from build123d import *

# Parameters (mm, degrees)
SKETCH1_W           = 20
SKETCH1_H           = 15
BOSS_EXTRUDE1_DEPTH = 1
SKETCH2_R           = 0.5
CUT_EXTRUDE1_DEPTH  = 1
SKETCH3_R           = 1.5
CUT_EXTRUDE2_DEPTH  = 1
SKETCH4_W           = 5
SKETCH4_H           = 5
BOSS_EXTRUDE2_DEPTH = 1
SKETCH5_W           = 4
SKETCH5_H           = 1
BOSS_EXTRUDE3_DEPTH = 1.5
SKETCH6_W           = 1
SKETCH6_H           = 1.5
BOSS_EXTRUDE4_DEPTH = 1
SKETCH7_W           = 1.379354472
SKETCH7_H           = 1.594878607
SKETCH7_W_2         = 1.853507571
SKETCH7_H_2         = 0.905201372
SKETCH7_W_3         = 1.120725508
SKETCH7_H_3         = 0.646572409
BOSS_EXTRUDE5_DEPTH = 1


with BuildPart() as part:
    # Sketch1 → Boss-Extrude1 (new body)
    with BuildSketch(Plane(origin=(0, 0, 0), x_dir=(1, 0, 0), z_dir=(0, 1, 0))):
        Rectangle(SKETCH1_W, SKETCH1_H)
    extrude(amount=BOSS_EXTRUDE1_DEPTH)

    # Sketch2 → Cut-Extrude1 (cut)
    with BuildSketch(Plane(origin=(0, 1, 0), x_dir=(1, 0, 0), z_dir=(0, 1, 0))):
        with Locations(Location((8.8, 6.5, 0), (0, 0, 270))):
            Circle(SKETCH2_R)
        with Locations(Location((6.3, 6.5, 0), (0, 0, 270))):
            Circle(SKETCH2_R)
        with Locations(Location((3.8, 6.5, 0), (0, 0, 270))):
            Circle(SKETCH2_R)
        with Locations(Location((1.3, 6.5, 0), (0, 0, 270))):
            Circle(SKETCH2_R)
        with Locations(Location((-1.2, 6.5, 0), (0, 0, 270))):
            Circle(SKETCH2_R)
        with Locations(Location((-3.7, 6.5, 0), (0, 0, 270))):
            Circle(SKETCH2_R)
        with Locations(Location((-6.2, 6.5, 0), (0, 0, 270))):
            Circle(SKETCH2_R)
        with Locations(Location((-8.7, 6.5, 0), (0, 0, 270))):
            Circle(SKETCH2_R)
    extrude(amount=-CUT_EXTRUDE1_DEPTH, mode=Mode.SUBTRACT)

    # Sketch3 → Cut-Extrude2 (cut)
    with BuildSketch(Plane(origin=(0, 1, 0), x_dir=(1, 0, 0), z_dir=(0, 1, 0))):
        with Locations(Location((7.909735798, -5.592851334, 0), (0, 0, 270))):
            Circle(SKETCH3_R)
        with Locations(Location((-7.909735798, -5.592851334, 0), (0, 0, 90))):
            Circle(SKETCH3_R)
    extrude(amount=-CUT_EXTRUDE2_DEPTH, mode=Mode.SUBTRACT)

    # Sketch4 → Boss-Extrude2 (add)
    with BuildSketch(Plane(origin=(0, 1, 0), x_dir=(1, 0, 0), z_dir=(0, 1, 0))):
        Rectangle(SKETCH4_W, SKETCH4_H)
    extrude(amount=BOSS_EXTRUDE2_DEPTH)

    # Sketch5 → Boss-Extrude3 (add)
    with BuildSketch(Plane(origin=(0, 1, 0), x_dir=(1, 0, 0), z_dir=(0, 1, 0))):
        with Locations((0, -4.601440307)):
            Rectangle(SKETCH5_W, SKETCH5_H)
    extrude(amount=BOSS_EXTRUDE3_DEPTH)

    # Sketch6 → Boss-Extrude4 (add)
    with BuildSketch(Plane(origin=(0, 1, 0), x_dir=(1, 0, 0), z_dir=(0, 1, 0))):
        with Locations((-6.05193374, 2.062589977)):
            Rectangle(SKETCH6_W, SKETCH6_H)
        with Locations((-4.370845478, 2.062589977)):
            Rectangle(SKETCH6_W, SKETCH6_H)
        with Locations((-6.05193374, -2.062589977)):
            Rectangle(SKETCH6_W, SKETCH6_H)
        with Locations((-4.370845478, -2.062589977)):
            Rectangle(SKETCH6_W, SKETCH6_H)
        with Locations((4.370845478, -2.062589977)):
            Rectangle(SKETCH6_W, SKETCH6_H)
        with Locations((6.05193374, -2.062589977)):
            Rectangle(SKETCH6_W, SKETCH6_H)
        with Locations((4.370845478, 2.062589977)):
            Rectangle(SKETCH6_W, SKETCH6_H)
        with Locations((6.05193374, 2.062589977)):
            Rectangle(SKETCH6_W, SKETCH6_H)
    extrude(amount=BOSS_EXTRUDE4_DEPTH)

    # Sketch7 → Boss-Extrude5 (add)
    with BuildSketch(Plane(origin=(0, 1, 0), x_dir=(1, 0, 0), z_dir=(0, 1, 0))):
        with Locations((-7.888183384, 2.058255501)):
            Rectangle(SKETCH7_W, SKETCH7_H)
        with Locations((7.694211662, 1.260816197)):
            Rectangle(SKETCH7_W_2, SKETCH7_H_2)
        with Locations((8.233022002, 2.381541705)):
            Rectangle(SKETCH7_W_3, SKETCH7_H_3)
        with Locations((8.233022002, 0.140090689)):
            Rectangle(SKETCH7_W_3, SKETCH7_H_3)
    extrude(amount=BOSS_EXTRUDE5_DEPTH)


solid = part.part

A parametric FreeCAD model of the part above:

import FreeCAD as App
import Part
import Sketcher
from FreeCAD import Vector
Q = App.Units.Quantity


def add_polygon(sketch, points):
    """Adds a closed chain of lines whose ends are joined by coincident constraints."""
    first, n = sketch.GeometryCount, len(points)
    for a, b in zip(points, points[1:] + points[:1]):
        sketch.addGeometry(Part.LineSegment(App.Vector(*a, 0), App.Vector(*b, 0)), False)
    for i in range(n):
        sketch.addConstraint(Sketcher.Constraint("Coincident", first + i, 2, first + (i + 1) % n, 1))

doc = App.newDocument("Part")
params = doc.addObject("Spreadsheet::Sheet", "Params")
for row, (alias, value) in enumerate([
    ("sketch1_width", "20 mm"),
    ("sketch1_height", "15 mm"),
    ("pad1_length", "1 mm"),
    ("sketch2_diameter", "1 mm"),
    ("pocket1_length", "1 mm"),
    ("sketch3_diameter", "3 mm"),
    ("pocket2_length", "1 mm"),
    ("sketch4_width", "5 mm"),
    ("pad2_length", "1 mm"),
    ("sketch5_width", "4 mm"),
    ("sketch5_height", "1 mm"),
    ("pad3_length", "1.5 mm"),
    ("sketch6_width", "1 mm"),
    ("sketch6_height", "1.5 mm"),
    ("pad4_length", "1 mm"),
    ("pad5_length", "1 mm"),
], start=1):
    params.set(f"A{row}", alias)
    params.set(f"B{row}", "=" + value)
    params.setAlias(f"B{row}", alias)

body = doc.addObject("PartDesign::Body", "Body")

# Sketch on XZ plane
sketch1 = body.newObject("Sketcher::SketchObject", "Sketch")
sketch1.AttachmentSupport = (doc.getObject("XZ_Plane"), [""])
sketch1.MapMode = "FlatFace"
add_polygon(sketch1, [(-10, -8), (-10, 8), (10, 8), (10, -8)])  # lines 0-3
sketch1.addConstraint(Sketcher.Constraint("Vertical", 0))
sketch1.addConstraint(Sketcher.Constraint("Horizontal", 1))
sketch1.addConstraint(Sketcher.Constraint("Vertical", 2))
sketch1.addConstraint(Sketcher.Constraint("Horizontal", 3))
sketch1.addConstraint(Sketcher.Constraint("Symmetric", 0, 2, 2, 2, -1, 1))
sketch1.addConstraint(Sketcher.Constraint("DistanceX", 1, 1, 1, 2, Q("20 mm")))
sketch1.addConstraint(Sketcher.Constraint("DistanceY", 0, 1, 0, 2, Q("15 mm")))
sketch1.setExpression("Constraints[9]", "Params.sketch1_width")
sketch1.setExpression("Constraints[10]", "Params.sketch1_height")
pad1 = body.newObject("PartDesign::Pad", "Pad")
pad1.Profile = sketch1
pad1.setExpression("Length", "Params.pad1_length")
pad1.Reversed = True

# Sketch on XZ plane
sketch2 = body.newObject("Sketcher::SketchObject", "Sketch001")
sketch2.AttachmentSupport = (doc.getObject("XZ_Plane"), [""])
sketch2.MapMode = "FlatFace"
sketch2.AttachmentOffset = App.Placement(Vector(0, 0, -1), App.Rotation())
sketch2.addGeometry(Part.Circle(Vector(8.8, -6.5, 0), Vector(0, 0, 1), 0.5), False)
sketch2.addGeometry(Part.Circle(Vector(6.3, -6.5, 0), Vector(0, 0, 1), 0.5), False)
sketch2.addGeometry(Part.Circle(Vector(3.8, -6.5, 0), Vector(0, 0, 1), 0.5), False)
sketch2.addGeometry(Part.Circle(Vector(1.3, -6.5, 0), Vector(0, 0, 1), 0.5), False)
sketch2.addGeometry(Part.Circle(Vector(-1.2, -6.5, 0), Vector(0, 0, 1), 0.5), False)
sketch2.addGeometry(Part.Circle(Vector(-3.7, -6.5, 0), Vector(0, 0, 1), 0.5), False)
sketch2.addGeometry(Part.Circle(Vector(-6.2, -6.5, 0), Vector(0, 0, 1), 0.5), False)
sketch2.addGeometry(Part.Circle(Vector(-8.7, -6.5, 0), Vector(0, 0, 1), 0.5), False)
sketch2.addConstraint(Sketcher.Constraint("Equal", 0, 1))
sketch2.addConstraint(Sketcher.Constraint("Equal", 1, 2))
sketch2.addConstraint(Sketcher.Constraint("Equal", 2, 3))
sketch2.addConstraint(Sketcher.Constraint("Equal", 3, 4))
sketch2.addConstraint(Sketcher.Constraint("Equal", 4, 5))
sketch2.addConstraint(Sketcher.Constraint("Equal", 5, 6))
sketch2.addConstraint(Sketcher.Constraint("Equal", 6, 7))
sketch2.addConstraint(Sketcher.Constraint("Horizontal", 0, 3, 1, 3))
sketch2.addConstraint(Sketcher.Constraint("Horizontal", 1, 3, 2, 3))
sketch2.addConstraint(Sketcher.Constraint("Horizontal", 2, 3, 3, 3))
sketch2.addConstraint(Sketcher.Constraint("Horizontal", 3, 3, 4, 3))
sketch2.addConstraint(Sketcher.Constraint("Horizontal", 4, 3, 5, 3))
sketch2.addConstraint(Sketcher.Constraint("Horizontal", 5, 3, 6, 3))
sketch2.addConstraint(Sketcher.Constraint("Horizontal", 6, 3, 7, 3))
sketch2.addConstraint(Sketcher.Constraint("Diameter", 0, Q("1 mm")))
sketch2.addConstraint(Sketcher.Constraint("DistanceX", 2, 3, 0, 3, Q("5 mm")))
sketch2.addConstraint(Sketcher.Constraint("DistanceX", 3, 3, 1, 3, Q("5 mm")))
sketch2.addConstraint(Sketcher.Constraint("DistanceX", 4, 3, 2, 3, Q("5 mm")))
sketch2.addConstraint(Sketcher.Constraint("DistanceX", 5, 3, 3, 3, Q("5 mm")))
sketch2.addConstraint(Sketcher.Constraint("DistanceX", 6, 3, 4, 3, Q("5 mm")))
sketch2.addConstraint(Sketcher.Constraint("DistanceX", 7, 3, 5, 3, Q("5 mm")))
sketch2.addConstraint(Sketcher.Constraint("DistanceX", -1, 1, 0, 3, Q("8.8 mm")))
sketch2.addConstraint(Sketcher.Constraint("DistanceY", 0, 3, -1, 1, Q("6.5 mm")))
sketch2.addConstraint(Sketcher.Constraint("DistanceX", -1, 1, 1, 3, Q("6.3 mm")))
sketch2.setExpression("Constraints[14]", "Params.sketch2_diameter")
pocket1 = body.newObject("PartDesign::Pocket", "Pocket")
pocket1.Profile = sketch2
pocket1.setExpression("Length", "Params.pocket1_length")
pocket1.Reversed = True

# Sketch on XZ plane
sketch3 = body.newObject("Sketcher::SketchObject", "Sketch002")
sketch3.AttachmentSupport = (doc.getObject("XZ_Plane"), [""])
sketch3.MapMode = "FlatFace"
sketch3.AttachmentOffset = App.Placement(Vector(0, 0, -1), App.Rotation())
sketch3.addGeometry(Part.Circle(Vector(7.9, 5.6, 0), Vector(0, 0, 1), 1.5), False)
sketch3.addGeometry(Part.Circle(Vector(-7.9, 5.6, 0), Vector(0, 0, 1), 1.5), False)
sketch3.addConstraint(Sketcher.Constraint("Equal", 0, 1))
sketch3.addConstraint(Sketcher.Constraint("Symmetric", 0, 3, 1, 3, -2))
sketch3.addConstraint(Sketcher.Constraint("Diameter", 0, Q("3 mm")))
sketch3.addConstraint(Sketcher.Constraint("DistanceY", -1, 1, 0, 3, Q("5.592851 mm")))
sketch3.addConstraint(Sketcher.Constraint("DistanceX", 1, 3, 0, 3, Q("15.819472 mm")))
sketch3.setExpression("Constraints[2]", "Params.sketch3_diameter")
pocket2 = body.newObject("PartDesign::Pocket", "Pocket001")
pocket2.Profile = sketch3
pocket2.setExpression("Length", "Params.pocket2_length")
pocket2.Reversed = True

# Sketch on XZ plane
sketch4 = body.newObject("Sketcher::SketchObject", "Sketch003")
sketch4.AttachmentSupport = (doc.getObject("XZ_Plane"), [""])
sketch4.MapMode = "FlatFace"
sketch4.AttachmentOffset = App.Placement(Vector(0, 0, -1), App.Rotation())
add_polygon(sketch4, [(-2, -2), (-2, 2), (2, 2), (2, -2)])  # lines 0-3
sketch4.addConstraint(Sketcher.Constraint("Vertical", 0))
sketch4.addConstraint(Sketcher.Constraint("Horizontal", 1))
sketch4.addConstraint(Sketcher.Constraint("Vertical", 2))
sketch4.addConstraint(Sketcher.Constraint("Horizontal", 3))
sketch4.addConstraint(Sketcher.Constraint("Symmetric", 0, 2, 2, 2, -1, 1))
sketch4.addConstraint(Sketcher.Constraint("Equal", 3, 0))
sketch4.addConstraint(Sketcher.Constraint("DistanceX", 1, 1, 1, 2, Q("5 mm")))
sketch4.setExpression("Constraints[10]", "Params.sketch4_width")
pad2 = body.newObject("PartDesign::Pad", "Pad001")
pad2.Profile = sketch4
pad2.setExpression("Length", "Params.pad2_length")
pad2.Reversed = True

# Sketch on XZ plane
sketch5 = body.newObject("Sketcher::SketchObject", "Sketch004")
sketch5.AttachmentSupport = (doc.getObject("XZ_Plane"), [""])
sketch5.MapMode = "FlatFace"
sketch5.AttachmentOffset = App.Placement(Vector(0, 0, -1), App.Rotation())
add_polygon(sketch5, [(-2, 4.1), (-2, 5.1), (2, 5.1), (2, 4.1)])  # lines 0-3
sketch5.addConstraint(Sketcher.Constraint("Vertical", 0))
sketch5.addConstraint(Sketcher.Constraint("Horizontal", 1))
sketch5.addConstraint(Sketcher.Constraint("Vertical", 2))
sketch5.addConstraint(Sketcher.Constraint("Horizontal", 3))
sketch5.addConstraint(Sketcher.Constraint("DistanceX", 1, 1, 1, 2, Q("4 mm")))
sketch5.addConstraint(Sketcher.Constraint("DistanceY", 0, 1, 0, 2, Q("1 mm")))
sketch5.addConstraint(Sketcher.Constraint("DistanceX", 0, 2, -1, 1, Q("2 mm")))
sketch5.addConstraint(Sketcher.Constraint("DistanceY", -1, 1, 0, 2, Q("5.10144 mm")))
sketch5.setExpression("Constraints[8]", "Params.sketch5_width")
sketch5.setExpression("Constraints[9]", "Params.sketch5_height")
pad3 = body.newObject("PartDesign::Pad", "Pad002")
pad3.Profile = sketch5
pad3.setExpression("Length", "Params.pad3_length")
pad3.Reversed = True

# Sketch on XZ plane
sketch6 = body.newObject("Sketcher::SketchObject", "Sketch005")
sketch6.AttachmentSupport = (doc.getObject("XZ_Plane"), [""])
sketch6.MapMode = "FlatFace"
sketch6.AttachmentOffset = App.Placement(Vector(0, 0, -1), App.Rotation())
add_polygon(sketch6, [(-6.6, -2.8), (-6.6, -1.3), (-5.6, -1.3), (-5.6, -2.8)])  # lines 0-3
add_polygon(sketch6, [(-4.9, -2.8), (-4.9, -1.3), (-3.9, -1.3), (-3.9, -2.8)])  # lines 4-7
add_polygon(sketch6, [(-6.6, 1.3), (-6.6, 2.8), (-5.6, 2.8), (-5.6, 1.3)])  # lines 8-11
add_polygon(sketch6, [(-4.9, 1.3), (-4.9, 2.8), (-3.9, 2.8), (-3.9, 1.3)])  # lines 12-15
add_polygon(sketch6, [(3.9, 1.3), (3.9, 2.8), (4.9, 2.8), (4.9, 1.3)])  # lines 16-19
add_polygon(sketch6, [(5.6, 1.3), (5.6, 2.8), (6.6, 2.8), (6.6, 1.3)])  # lines 20-23
add_polygon(sketch6, [(3.9, -2.8), (3.9, -1.3), (4.9, -1.3), (4.9, -2.8)])  # lines 24-27
add_polygon(sketch6, [(5.6, -2.8), (5.6, -1.3), (6.6, -1.3), (6.6, -2.8)])  # lines 28-31
sketch6.addConstraint(Sketcher.Constraint("Vertical", 0))
sketch6.addConstraint(Sketcher.Constraint("Horizontal", 1))
sketch6.addConstraint(Sketcher.Constraint("Vertical", 2))
sketch6.addConstraint(Sketcher.Constraint("Horizontal", 3))
sketch6.addConstraint(Sketcher.Constraint("Vertical", 4))
sketch6.addConstraint(Sketcher.Constraint("Horizontal", 5))
sketch6.addConstraint(Sketcher.Constraint("Vertical", 6))
sketch6.addConstraint(Sketcher.Constraint("Horizontal", 7))
sketch6.addConstraint(Sketcher.Constraint("Vertical", 8))
sketch6.addConstraint(Sketcher.Constraint("Horizontal", 9))
sketch6.addConstraint(Sketcher.Constraint("Vertical", 10))
sketch6.addConstraint(Sketcher.Constraint("Horizontal", 11))
sketch6.addConstraint(Sketcher.Constraint("Vertical", 12))
sketch6.addConstraint(Sketcher.Constraint("Horizontal", 13))
sketch6.addConstraint(Sketcher.Constraint("Vertical", 14))
sketch6.addConstraint(Sketcher.Constraint("Horizontal", 15))
sketch6.addConstraint(Sketcher.Constraint("Vertical", 16))
sketch6.addConstraint(Sketcher.Constraint("Horizontal", 17))
sketch6.addConstraint(Sketcher.Constraint("Vertical", 18))
sketch6.addConstraint(Sketcher.Constraint("Horizontal", 19))
sketch6.addConstraint(Sketcher.Constraint("Vertical", 20))
sketch6.addConstraint(Sketcher.Constraint("Horizontal", 21))
sketch6.addConstraint(Sketcher.Constraint("Vertical", 22))
sketch6.addConstraint(Sketcher.Constraint("Horizontal", 23))
sketch6.addConstraint(Sketcher.Constraint("Vertical", 24))
sketch6.addConstraint(Sketcher.Constraint("Horizontal", 25))
sketch6.addConstraint(Sketcher.Constraint("Vertical", 26))
sketch6.addConstraint(Sketcher.Constraint("Horizontal", 27))
sketch6.addConstraint(Sketcher.Constraint("Vertical", 28))
sketch6.addConstraint(Sketcher.Constraint("Horizontal", 29))
sketch6.addConstraint(Sketcher.Constraint("Vertical", 30))
sketch6.addConstraint(Sketcher.Constraint("Horizontal", 31))
sketch6.addConstraint(Sketcher.Constraint("Symmetric", 6, 2, 16, 2, -1, 1))
sketch6.addConstraint(Sketcher.Constraint("Symmetric", 4, 2, 18, 2, -1, 1))
sketch6.addConstraint(Sketcher.Constraint("Symmetric", 2, 2, 20, 2, -1, 1))
sketch6.addConstraint(Sketcher.Constraint("Symmetric", 0, 2, 22, 2, -1, 1))
sketch6.addConstraint(Sketcher.Constraint("Symmetric", 14, 2, 24, 2, -1, 1))
sketch6.addConstraint(Sketcher.Constraint("Symmetric", 12, 2, 26, 2, -1, 1))
sketch6.addConstraint(Sketcher.Constraint("Symmetric", 10, 2, 28, 2, -1, 1))
sketch6.addConstraint(Sketcher.Constraint("Symmetric", 8, 2, 30, 2, -1, 1))
sketch6.addConstraint(Sketcher.Constraint("Symmetric", 13, 2, 16, 2, -2))
sketch6.addConstraint(Sketcher.Constraint("Symmetric", 15, 2, 18, 2, -2))
sketch6.addConstraint(Sketcher.Constraint("Symmetric", 9, 2, 20, 2, -2))
sketch6.addConstraint(Sketcher.Constraint("Symmetric", 11, 2, 22, 2, -2))
sketch6.addConstraint(Sketcher.Constraint("Horizontal", 1, 2, 4, 2))
sketch6.addConstraint(Sketcher.Constraint("Horizontal", 3, 2, 6, 2))
sketch6.addConstraint(Sketcher.Constraint("Equal", 3, 5))
sketch6.addConstraint(Sketcher.Constraint("DistanceX", 1, 1, 1, 2, Q("1 mm")))
sketch6.addConstraint(Sketcher.Constraint("DistanceY", 0, 1, 0, 2, Q("1.5 mm")))
sketch6.addConstraint(Sketcher.Constraint("DistanceY", 0, 2, -1, 1, Q("1.31259 mm")))
sketch6.addConstraint(Sketcher.Constraint("DistanceX", 1, 2, 4, 2, Q("0.681088 mm")))
sketch6.addConstraint(Sketcher.Constraint("DistanceX", 13, 2, 16, 2, Q("7.741691 mm")))
sketch6.setExpression("Constraints[79]", "Params.sketch6_width")
sketch6.setExpression("Constraints[80]", "Params.sketch6_height")
pad4 = body.newObject("PartDesign::Pad", "Pad003")
pad4.Profile = sketch6
pad4.setExpression("Length", "Params.pad4_length")
pad4.Reversed = True

# Sketch on XZ plane
sketch7 = body.newObject("Sketcher::SketchObject", "Sketch006")
sketch7.AttachmentSupport = (doc.getObject("XZ_Plane"), [""])
sketch7.MapMode = "FlatFace"
sketch7.AttachmentOffset = App.Placement(Vector(0, 0, -1), App.Rotation())
add_polygon(sketch7, [(-8.6, -2.9), (-8.6, -1.3), (-7.2, -1.3), (-7.2, -2.9)])  # lines 0-3
add_polygon(sketch7, [(6.8, -1.7), (6.8, -0.8), (8.6, -0.8), (8.6, -1.7)])  # lines 4-7
add_polygon(sketch7, [(7.7, -2.7), (7.7, -2.1), (8.8, -2.1), (8.8, -2.7)])  # lines 8-11
add_polygon(sketch7, [(7.7, -0.5), (7.7, 0.2), (8.8, 0.2), (8.8, -0.5)])  # lines 12-15
sketch7.addConstraint(Sketcher.Constraint("Vertical", 0))
sketch7.addConstraint(Sketcher.Constraint("Horizontal", 1))
sketch7.addConstraint(Sketcher.Constraint("Vertical", 2))
sketch7.addConstraint(Sketcher.Constraint("Horizontal", 3))
sketch7.addConstraint(Sketcher.Constraint("Vertical", 4))
sketch7.addConstraint(Sketcher.Constraint("Horizontal", 5))
sketch7.addConstraint(Sketcher.Constraint("Vertical", 6))
sketch7.addConstraint(Sketcher.Constraint("Horizontal", 7))
sketch7.addConstraint(Sketcher.Constraint("Vertical", 8))
sketch7.addConstraint(Sketcher.Constraint("Horizontal", 9))
sketch7.addConstraint(Sketcher.Constraint("Vertical", 10))
sketch7.addConstraint(Sketcher.Constraint("Horizontal", 11))
sketch7.addConstraint(Sketcher.Constraint("Vertical", 12))
sketch7.addConstraint(Sketcher.Constraint("Horizontal", 13))
sketch7.addConstraint(Sketcher.Constraint("Vertical", 14))
sketch7.addConstraint(Sketcher.Constraint("Horizontal", 15))
sketch7.addConstraint(Sketcher.Constraint("Vertical", 11, 2, 12, 2))
sketch7.addConstraint(Sketcher.Constraint("Vertical", 10, 2, 13, 2))
sketch7.addConstraint(Sketcher.Constraint("Equal", 10, 12))
sketch7.addConstraint(Sketcher.Constraint("DistanceY", 4, 1, 4, 2, Q("0.905201 mm")))
sketch7.addConstraint(Sketcher.Constraint("DistanceY", 0, 1, 0, 2, Q("1.594879 mm")))
sketch7.addConstraint(Sketcher.Constraint("DistanceY", 1, 2, 4, 2, Q("0.452601 mm")))
sketch7.addConstraint(Sketcher.Constraint("DistanceX", 7, 2, 8, 2, Q("0.905201 mm")))
sketch7.addConstraint(Sketcher.Constraint("DistanceX", 1, 1, 1, 2, Q("1.379354 mm")))
sketch7.addConstraint(Sketcher.Constraint("DistanceX", 5, 1, 5, 2, Q("1.853508 mm")))
sketch7.addConstraint(Sketcher.Constraint("DistanceX", 9, 1, 9, 2, Q("1.120726 mm")))
sketch7.addConstraint(Sketcher.Constraint("DistanceY", 8, 1, 8, 2, Q("0.646572 mm")))
sketch7.addConstraint(Sketcher.Constraint("DistanceX", 0, 2, -1, 1, Q("8.577861 mm")))
sketch7.addConstraint(Sketcher.Constraint("DistanceX", -1, 1, 8, 2, Q("7.672659 mm")))
sketch7.addConstraint(Sketcher.Constraint("DistanceY", 8, 2, 7, 2, Q("0.344839 mm")))
sketch7.addConstraint(Sketcher.Constraint("DistanceY", 4, 2, 12, 2, Q("0.991411 mm")))
sketch7.addConstraint(Sketcher.Constraint("DistanceY", 0, 2, -1, 1, Q("1.260816 mm")))
pad5 = body.newObject("PartDesign::Pad", "Pad004")
pad5.Profile = sketch7
pad5.setExpression("Length", "Params.pad5_length")
pad5.Reversed = True

doc.recompute()
